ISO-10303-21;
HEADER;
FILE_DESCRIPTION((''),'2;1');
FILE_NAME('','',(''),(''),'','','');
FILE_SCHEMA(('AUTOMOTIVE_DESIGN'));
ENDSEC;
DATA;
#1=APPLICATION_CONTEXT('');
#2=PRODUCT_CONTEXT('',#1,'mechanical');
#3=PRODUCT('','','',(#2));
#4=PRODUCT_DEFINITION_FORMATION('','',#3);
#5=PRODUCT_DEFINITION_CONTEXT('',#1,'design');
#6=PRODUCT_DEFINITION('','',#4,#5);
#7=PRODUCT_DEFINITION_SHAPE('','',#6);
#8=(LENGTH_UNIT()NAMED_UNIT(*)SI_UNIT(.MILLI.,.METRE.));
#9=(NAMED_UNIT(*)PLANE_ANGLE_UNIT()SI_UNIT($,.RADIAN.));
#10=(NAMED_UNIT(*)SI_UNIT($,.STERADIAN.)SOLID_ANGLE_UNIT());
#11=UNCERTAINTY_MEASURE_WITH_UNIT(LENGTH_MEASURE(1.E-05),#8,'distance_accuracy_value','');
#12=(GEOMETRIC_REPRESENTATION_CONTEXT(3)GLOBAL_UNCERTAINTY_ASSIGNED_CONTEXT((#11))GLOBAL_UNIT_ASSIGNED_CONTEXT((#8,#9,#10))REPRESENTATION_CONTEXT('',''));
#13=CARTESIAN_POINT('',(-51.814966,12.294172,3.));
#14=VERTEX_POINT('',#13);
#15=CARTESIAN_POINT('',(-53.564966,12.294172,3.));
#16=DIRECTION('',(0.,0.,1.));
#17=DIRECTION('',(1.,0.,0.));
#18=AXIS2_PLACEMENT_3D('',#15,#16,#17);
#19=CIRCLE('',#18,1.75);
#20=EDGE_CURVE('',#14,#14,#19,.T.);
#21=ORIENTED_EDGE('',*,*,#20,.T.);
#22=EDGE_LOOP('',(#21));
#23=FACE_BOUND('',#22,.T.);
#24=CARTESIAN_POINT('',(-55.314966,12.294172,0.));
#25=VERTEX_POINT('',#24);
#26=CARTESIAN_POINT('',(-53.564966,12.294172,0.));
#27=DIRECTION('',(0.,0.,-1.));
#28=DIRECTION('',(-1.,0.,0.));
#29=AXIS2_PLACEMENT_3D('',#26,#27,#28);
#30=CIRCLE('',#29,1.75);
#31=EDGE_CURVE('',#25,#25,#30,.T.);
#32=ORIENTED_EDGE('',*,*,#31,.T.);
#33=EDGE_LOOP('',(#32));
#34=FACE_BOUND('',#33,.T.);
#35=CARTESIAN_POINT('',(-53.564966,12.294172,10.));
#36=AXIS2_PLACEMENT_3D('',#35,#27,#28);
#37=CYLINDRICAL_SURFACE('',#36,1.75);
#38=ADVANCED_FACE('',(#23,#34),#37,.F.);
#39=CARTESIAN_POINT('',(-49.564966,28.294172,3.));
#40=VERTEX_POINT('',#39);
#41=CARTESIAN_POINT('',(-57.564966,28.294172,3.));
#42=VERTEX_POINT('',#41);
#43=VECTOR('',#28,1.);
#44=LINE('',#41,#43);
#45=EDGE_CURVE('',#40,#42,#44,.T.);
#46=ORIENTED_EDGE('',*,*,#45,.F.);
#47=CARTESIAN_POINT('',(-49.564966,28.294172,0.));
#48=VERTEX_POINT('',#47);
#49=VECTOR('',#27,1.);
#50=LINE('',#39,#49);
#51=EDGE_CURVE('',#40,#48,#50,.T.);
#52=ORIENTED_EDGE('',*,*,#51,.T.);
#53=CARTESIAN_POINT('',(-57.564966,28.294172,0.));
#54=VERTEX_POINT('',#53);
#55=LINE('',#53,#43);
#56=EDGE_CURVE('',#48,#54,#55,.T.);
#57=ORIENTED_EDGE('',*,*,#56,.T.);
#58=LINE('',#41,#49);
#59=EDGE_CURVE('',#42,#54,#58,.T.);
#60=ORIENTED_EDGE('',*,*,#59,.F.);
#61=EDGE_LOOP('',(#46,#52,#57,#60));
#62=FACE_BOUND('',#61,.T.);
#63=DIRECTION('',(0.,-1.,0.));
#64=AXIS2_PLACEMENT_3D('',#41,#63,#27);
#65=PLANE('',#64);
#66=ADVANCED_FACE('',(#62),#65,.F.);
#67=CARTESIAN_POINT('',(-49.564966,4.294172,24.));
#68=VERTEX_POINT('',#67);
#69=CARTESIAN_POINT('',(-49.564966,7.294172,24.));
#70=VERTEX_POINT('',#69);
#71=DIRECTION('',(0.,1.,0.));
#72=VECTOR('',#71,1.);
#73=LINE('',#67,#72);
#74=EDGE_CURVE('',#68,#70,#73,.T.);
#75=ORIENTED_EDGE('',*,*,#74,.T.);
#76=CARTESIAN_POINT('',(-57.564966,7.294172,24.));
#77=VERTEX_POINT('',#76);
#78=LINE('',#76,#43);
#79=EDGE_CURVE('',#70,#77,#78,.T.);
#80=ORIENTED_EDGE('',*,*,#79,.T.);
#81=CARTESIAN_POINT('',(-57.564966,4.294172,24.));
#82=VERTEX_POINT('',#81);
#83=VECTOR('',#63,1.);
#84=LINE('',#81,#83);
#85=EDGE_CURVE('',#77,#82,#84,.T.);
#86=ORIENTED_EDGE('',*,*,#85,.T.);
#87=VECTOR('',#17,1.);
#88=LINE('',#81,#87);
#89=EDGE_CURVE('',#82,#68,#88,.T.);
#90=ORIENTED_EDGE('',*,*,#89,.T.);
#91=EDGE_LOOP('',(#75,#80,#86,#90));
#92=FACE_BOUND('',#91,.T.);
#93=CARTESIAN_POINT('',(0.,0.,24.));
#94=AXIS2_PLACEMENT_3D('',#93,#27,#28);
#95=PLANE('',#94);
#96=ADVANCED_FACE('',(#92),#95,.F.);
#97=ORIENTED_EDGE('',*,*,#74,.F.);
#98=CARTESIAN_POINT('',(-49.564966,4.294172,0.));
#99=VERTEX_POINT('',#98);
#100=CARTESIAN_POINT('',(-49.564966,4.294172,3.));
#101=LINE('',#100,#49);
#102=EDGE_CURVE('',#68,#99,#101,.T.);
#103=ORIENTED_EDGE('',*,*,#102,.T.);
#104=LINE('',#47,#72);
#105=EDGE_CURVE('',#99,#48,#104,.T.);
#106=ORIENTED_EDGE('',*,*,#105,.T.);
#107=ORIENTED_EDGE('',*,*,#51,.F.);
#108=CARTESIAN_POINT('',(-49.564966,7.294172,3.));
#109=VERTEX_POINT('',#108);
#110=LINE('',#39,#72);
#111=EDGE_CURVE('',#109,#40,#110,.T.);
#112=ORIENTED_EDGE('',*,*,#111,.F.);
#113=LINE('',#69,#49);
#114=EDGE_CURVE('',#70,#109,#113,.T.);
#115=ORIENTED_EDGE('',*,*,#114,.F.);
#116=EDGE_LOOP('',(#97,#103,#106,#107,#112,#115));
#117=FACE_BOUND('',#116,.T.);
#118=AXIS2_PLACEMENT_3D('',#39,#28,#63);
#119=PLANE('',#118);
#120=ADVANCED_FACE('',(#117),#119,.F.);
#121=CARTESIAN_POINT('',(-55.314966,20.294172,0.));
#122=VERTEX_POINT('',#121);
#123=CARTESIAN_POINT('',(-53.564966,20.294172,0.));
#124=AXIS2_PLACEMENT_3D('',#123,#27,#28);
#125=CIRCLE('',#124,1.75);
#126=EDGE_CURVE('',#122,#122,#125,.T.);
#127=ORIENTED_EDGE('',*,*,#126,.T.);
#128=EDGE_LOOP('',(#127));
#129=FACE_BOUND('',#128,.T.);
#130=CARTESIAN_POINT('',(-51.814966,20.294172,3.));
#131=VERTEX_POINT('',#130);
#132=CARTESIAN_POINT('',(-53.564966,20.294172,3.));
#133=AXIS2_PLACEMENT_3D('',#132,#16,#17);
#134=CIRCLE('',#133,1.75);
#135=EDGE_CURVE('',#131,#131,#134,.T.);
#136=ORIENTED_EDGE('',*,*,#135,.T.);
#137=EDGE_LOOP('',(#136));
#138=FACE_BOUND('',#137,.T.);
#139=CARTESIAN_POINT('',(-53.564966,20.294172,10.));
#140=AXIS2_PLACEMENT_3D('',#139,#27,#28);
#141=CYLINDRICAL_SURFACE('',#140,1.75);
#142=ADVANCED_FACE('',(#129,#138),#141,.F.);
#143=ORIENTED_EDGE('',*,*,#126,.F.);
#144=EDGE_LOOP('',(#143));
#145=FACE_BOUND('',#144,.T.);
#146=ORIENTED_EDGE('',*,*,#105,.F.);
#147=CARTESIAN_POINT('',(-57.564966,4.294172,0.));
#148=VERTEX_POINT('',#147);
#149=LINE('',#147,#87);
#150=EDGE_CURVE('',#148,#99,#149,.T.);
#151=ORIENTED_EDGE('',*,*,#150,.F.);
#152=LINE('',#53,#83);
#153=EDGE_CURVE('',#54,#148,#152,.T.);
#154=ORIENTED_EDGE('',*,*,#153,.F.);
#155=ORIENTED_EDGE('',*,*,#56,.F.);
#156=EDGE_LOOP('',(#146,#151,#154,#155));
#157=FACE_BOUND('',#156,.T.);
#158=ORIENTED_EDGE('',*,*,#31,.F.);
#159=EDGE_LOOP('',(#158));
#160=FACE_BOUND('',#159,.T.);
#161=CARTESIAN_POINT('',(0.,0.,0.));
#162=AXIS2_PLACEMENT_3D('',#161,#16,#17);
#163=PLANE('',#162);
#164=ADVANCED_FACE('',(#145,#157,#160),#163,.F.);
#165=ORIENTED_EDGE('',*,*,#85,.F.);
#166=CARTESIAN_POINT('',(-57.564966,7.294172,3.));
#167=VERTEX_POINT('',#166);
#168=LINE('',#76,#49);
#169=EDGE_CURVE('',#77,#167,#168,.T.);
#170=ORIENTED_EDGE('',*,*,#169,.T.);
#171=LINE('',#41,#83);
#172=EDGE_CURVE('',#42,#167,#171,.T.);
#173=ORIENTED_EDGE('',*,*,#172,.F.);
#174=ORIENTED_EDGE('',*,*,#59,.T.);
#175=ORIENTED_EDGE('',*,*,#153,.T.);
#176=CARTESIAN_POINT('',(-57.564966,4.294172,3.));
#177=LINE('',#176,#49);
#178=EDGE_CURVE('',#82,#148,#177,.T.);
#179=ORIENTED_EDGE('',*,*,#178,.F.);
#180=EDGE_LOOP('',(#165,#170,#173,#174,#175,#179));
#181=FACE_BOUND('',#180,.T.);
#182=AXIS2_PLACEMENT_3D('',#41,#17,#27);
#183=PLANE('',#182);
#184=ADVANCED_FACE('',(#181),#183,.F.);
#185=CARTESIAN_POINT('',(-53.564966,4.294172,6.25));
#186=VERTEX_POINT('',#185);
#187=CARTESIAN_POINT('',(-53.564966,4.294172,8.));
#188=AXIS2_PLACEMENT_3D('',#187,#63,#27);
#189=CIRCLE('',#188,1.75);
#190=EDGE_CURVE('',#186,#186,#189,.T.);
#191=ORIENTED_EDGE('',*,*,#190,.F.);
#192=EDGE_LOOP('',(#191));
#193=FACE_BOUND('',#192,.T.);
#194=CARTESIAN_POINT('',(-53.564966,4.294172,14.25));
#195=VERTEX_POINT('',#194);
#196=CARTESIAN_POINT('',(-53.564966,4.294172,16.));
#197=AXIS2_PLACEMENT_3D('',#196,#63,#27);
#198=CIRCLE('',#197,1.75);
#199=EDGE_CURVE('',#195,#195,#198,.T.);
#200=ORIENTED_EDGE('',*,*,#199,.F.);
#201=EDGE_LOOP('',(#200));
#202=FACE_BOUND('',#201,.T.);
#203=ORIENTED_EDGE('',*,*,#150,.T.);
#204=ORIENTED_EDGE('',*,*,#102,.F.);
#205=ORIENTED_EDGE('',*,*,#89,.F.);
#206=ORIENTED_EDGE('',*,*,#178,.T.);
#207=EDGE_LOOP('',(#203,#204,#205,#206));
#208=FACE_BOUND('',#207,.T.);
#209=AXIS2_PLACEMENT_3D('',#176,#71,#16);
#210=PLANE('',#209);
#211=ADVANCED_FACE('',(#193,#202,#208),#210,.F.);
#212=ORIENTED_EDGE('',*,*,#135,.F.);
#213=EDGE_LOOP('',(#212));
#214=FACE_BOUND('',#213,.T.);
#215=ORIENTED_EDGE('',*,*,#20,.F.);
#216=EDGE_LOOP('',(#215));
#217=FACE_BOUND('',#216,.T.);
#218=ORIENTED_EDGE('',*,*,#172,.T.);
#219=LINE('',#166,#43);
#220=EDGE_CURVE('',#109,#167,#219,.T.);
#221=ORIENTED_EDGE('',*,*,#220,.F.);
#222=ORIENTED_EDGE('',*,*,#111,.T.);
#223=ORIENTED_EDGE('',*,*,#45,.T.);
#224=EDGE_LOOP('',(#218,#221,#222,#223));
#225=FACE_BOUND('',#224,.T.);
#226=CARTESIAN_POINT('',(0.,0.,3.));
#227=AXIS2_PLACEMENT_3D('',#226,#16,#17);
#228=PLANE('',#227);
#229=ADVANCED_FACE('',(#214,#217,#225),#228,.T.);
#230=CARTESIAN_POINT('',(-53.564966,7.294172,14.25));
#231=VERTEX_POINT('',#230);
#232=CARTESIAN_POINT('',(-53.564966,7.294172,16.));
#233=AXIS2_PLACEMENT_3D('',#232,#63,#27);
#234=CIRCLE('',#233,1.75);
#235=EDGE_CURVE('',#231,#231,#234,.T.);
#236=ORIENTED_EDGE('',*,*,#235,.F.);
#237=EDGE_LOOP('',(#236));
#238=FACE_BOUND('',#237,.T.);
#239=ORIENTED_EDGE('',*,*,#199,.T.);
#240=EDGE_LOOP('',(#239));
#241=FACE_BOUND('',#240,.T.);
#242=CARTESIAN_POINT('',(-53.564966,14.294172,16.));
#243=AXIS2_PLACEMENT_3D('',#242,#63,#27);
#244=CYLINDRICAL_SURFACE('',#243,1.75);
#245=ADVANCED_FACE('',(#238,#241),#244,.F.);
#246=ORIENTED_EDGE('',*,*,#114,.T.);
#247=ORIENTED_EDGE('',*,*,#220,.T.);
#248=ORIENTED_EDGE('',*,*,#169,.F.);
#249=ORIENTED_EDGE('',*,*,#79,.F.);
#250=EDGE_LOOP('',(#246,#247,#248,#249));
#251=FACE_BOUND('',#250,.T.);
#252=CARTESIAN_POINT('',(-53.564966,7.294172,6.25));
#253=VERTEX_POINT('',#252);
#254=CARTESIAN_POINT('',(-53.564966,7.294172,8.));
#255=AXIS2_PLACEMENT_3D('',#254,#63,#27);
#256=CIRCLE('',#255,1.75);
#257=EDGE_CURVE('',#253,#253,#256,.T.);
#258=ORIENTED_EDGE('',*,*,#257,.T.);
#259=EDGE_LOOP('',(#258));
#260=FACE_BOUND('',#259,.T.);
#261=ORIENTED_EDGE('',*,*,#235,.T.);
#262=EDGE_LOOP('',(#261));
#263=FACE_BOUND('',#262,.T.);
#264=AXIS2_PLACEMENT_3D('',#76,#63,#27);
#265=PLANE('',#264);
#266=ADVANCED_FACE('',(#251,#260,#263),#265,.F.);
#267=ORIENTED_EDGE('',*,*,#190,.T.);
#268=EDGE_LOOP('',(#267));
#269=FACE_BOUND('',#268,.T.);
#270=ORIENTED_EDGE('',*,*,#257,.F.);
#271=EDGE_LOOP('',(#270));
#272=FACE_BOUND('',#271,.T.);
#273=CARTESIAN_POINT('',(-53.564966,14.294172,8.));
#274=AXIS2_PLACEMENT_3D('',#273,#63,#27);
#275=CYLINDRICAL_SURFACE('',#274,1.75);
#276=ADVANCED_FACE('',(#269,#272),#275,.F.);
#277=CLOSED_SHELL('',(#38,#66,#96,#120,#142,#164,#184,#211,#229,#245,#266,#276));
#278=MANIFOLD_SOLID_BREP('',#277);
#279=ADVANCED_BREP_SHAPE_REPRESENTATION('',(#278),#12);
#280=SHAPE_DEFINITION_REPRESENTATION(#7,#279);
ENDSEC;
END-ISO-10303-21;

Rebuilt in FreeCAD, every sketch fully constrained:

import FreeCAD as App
import Part
import Sketcher

V = App.Vector
Q = App.Units.Quantity


def add_polygon(sketch, points):
    """Adds a closed chain of lines whose ends are joined by coincident constraints."""
    first, n = sketch.GeometryCount, len(points)
    for a, b in zip(points, points[1:] + points[:1]):
        sketch.addGeometry(Part.LineSegment(App.Vector(*a, 0), App.Vector(*b, 0)), False)
    for i in range(n):
        sketch.addConstraint(Sketcher.Constraint("Coincident", first + i, 2, first + (i + 1) % n, 1))

doc = App.newDocument("Part")
body = doc.addObject("PartDesign::Body", "Body")

# Sketch on XY plane
sketch1 = body.newObject("Sketcher::SketchObject", "Sketch")
sketch1.AttachmentSupport = (doc.getObject("XY_Plane"), [""])
sketch1.MapMode = "FlatFace"
add_polygon(sketch1, [(-58, 28), (-58, 4), (-50, 4), (-50, 28)])  # lines 0-3
sketch1.addConstraint([
    Sketcher.Constraint("Vertical", 0),
    Sketcher.Constraint("Horizontal", 1),
    Sketcher.Constraint("Vertical", 2),
    Sketcher.Constraint("Horizontal", 3),
    Sketcher.Constraint("DistanceX", 1, 1, 1, 2, Q("8 mm")),
    Sketcher.Constraint("DistanceY", 0, 2, 0, 1, Q("24 mm")),
    Sketcher.Constraint("DistanceY", -1, 1, 0, 2, Q("4.294172 mm")),
    Sketcher.Constraint("DistanceX", 0, 2, -1, 1, Q("57.564966 mm")),
])
pad1 = body.newObject("PartDesign::Pad", "Pad")
pad1.Profile = sketch1
pad1.Length = 3

# Sketch on XY plane
sketch2 = body.newObject("Sketcher::SketchObject", "Sketch001")
sketch2.AttachmentSupport = (doc.getObject("XY_Plane"), [""])
sketch2.MapMode = "FlatFace"
sketch2.AttachmentOffset = App.Placement(V(0, 0, 3), App.Rotation())
add_polygon(sketch2, [(-57.6, 7.3), (-57.6, 4.3), (-49.6, 4.3), (-49.6, 7.3)])  # lines 0-3
sketch2.addConstraint([
    Sketcher.Constraint("Vertical", 0),
    Sketcher.Constraint("Horizontal", 1),
    Sketcher.Constraint("Vertical", 2),
    Sketcher.Constraint("Horizontal", 3),
    Sketcher.Constraint("DistanceX", 1, 1, 1, 2, Q("8 mm")),
    Sketcher.Constraint("DistanceY", 0, 2, 0, 1, Q("3 mm")),
    Sketcher.Constraint("DistanceY", -1, 1, 0, 2, Q("4.294172 mm")),
    Sketcher.Constraint("DistanceX", 0, 2, -1, 1, Q("57.564966 mm")),
])
pad2 = body.newObject("PartDesign::Pad", "Pad001")
pad2.Profile = sketch2
pad2.Length = 21

# Sketch on XY plane
sketch3 = body.newObject("Sketcher::SketchObject", "Sketch002")
sketch3.AttachmentSupport = (doc.getObject("XY_Plane"), [""])
sketch3.MapMode = "FlatFace"
sketch3.addGeometry([
    Part.Circle(V(-53.6, 12.3, 0), V(0, 0, 1), 1.8),
    Part.Circle(V(-53.6, 20.3, 0), V(0, 0, 1), 1.8),
], False)
sketch3.addConstraint([
    Sketcher.Constraint("Equal", 0, 1),
    Sketcher.Constraint("Vertical", 0, 3, 1, 3),
    Sketcher.Constraint("Diameter", 0, Q("3.5 mm")),
    Sketcher.Constraint("DistanceY", 0, 3, 1, 3, Q("8 mm")),
    Sketcher.Constraint("DistanceY", -1, 1, 0, 3, Q("12.294172 mm")),
    Sketcher.Constraint("DistanceX", 0, 3, -1, 1, Q("53.564966 mm")),
])
pocket1 = body.newObject("PartDesign::Pocket", "Pocket")
pocket1.Profile = sketch3
pocket1.Length = 10
pocket1.Reversed = True

# Sketch on XZ plane
sketch4 = body.newObject("Sketcher::SketchObject", "Sketch003")
sketch4.AttachmentSupport = (doc.getObject("XZ_Plane"), [""])
sketch4.MapMode = "FlatFace"
sketch4.AttachmentOffset = App.Placement(V(0, 0, -4.294172), App.Rotation())
sketch4.addGeometry([
    Part.Circle(V(-53.6, 8, 0), V(0, 0, 1), 1.8),
    Part.Circle(V(-53.6, 16, 0), V(0, 0, 1), 1.8),
], False)
sketch4.addConstraint([
    Sketcher.Constraint("Equal", 0, 1),
    Sketcher.Constraint("Vertical", 0, 3, 1, 3),
    Sketcher.Constraint("Diameter", 0, Q("3.5 mm")),
    Sketcher.Constraint("DistanceY", -1, 1, 0, 3, Q("8 mm")),
    Sketcher.Constraint("DistanceY", -1, 1, 1, 3, Q("16 mm")),
    Sketcher.Constraint("DistanceX", 0, 3, -1, 1, Q("53.564966 mm")),
])
pocket2 = body.newObject("PartDesign::Pocket", "Pocket001")
pocket2.Profile = sketch4
pocket2.Length = 10

doc.recompute()
